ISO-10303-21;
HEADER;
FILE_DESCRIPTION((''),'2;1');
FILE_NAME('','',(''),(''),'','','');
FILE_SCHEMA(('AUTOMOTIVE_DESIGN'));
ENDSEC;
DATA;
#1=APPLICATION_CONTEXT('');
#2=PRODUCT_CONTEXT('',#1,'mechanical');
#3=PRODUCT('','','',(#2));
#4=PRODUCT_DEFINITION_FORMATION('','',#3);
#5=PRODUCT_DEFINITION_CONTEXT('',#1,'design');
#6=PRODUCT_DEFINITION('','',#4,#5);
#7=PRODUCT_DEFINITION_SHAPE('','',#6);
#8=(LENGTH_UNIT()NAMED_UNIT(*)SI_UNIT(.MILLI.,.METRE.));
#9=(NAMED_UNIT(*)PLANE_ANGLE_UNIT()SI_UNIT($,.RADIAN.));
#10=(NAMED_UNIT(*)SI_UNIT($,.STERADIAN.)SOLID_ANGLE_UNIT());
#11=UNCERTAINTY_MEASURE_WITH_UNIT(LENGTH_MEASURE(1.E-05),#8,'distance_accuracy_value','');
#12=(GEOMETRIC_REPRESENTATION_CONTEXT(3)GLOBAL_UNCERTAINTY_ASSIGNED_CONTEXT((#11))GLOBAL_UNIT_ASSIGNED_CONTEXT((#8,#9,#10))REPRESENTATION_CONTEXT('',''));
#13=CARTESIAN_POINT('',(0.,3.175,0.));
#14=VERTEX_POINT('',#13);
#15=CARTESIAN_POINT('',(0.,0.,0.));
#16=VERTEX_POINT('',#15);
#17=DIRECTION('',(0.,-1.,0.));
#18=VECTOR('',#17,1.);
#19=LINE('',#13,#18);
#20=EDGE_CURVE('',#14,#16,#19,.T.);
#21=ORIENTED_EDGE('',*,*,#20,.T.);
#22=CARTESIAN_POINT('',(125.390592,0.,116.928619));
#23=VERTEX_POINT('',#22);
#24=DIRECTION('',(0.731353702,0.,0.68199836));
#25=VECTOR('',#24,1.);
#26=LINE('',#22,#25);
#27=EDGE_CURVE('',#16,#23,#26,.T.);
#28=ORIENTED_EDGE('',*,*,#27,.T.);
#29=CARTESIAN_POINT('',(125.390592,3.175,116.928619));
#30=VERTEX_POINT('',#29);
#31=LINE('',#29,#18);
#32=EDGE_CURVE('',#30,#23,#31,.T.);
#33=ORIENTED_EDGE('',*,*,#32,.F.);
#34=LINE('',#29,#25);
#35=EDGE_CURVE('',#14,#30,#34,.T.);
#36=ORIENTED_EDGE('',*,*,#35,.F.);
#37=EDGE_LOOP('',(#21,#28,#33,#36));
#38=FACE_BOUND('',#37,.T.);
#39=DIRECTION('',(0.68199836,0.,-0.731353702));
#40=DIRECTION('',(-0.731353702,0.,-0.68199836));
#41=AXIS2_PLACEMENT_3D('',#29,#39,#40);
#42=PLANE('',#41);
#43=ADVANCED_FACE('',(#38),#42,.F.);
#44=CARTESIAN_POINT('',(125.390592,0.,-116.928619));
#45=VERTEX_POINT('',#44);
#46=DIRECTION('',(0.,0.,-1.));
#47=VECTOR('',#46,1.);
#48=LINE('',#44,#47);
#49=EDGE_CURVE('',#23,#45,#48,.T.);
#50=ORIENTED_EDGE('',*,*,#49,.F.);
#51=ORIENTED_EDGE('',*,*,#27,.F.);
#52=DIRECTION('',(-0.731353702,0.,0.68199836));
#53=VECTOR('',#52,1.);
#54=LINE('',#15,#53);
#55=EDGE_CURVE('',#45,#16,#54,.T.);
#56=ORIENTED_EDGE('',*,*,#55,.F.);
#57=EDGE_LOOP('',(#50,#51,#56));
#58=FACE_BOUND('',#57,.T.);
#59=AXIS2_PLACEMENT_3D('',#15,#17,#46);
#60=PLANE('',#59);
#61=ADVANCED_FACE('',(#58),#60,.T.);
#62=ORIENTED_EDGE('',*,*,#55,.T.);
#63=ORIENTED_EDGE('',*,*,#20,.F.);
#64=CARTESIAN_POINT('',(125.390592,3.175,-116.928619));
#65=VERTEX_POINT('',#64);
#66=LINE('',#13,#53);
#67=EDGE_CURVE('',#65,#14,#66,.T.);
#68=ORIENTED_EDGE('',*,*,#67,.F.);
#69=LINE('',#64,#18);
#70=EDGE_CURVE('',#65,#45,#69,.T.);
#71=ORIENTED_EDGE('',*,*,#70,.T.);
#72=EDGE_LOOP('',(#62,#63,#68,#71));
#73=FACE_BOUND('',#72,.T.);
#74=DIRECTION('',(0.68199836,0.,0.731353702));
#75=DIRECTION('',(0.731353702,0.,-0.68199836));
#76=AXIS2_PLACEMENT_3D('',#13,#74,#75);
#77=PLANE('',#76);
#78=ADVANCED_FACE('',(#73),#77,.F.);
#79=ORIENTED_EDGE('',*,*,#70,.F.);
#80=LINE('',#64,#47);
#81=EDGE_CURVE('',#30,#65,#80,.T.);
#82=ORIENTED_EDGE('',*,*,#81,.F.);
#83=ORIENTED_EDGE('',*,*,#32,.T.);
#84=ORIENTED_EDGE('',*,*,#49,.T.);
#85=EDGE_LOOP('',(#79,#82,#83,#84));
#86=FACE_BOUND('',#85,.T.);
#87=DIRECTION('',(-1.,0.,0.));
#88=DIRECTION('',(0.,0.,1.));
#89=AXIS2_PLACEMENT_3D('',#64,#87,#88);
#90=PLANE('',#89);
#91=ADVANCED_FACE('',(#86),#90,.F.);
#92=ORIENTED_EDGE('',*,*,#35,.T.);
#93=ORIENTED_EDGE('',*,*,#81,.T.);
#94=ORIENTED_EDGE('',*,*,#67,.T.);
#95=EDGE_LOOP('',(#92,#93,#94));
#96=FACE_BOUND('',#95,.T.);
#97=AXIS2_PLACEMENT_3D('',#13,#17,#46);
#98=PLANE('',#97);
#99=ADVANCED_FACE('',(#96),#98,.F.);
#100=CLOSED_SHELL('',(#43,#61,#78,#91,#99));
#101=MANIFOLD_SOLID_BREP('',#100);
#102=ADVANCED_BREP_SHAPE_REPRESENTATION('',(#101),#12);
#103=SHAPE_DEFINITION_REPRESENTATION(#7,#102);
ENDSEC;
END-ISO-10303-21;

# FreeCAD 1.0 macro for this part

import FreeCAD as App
import Part
import Sketcher
from FreeCAD import Vector
Q = App.Units.Quantity


def add_polygon(sketch, points):
    """Adds a closed chain of lines whose ends are joined by coincident constraints."""
    first, n = sketch.GeometryCount, len(points)
    for a, b in zip(points, points[1:] + points[:1]):
        sketch.addGeometry(Part.LineSegment(App.Vector(*a, 0), App.Vector(*b, 0)), False)
    for i in range(n):
        sketch.addConstraint(Sketcher.Constraint("Coincident", first + i, 2, first + (i + 1) % n, 1))

doc = App.newDocument("Part")
params = doc.addObject("Spreadsheet::Sheet", "Params")
for row, (alias, value) in enumerate([
    ("sketch1_length", "6.75 in"),
    ("pad1_length", "0.125 in"),
], start=1):
    params.set(f"A{row}", alias)
    params.set(f"B{row}", "=" + value)
    params.setAlias(f"B{row}", alias)

body = doc.addObject("PartDesign::Body", "Body")

sketch1 = doc.addObject("Sketcher::SketchObject", "Sketch")
body.addObject(sketch1)
sketch1.AttachmentSupport = (doc.XZ_Plane, [""])
sketch1.MapMode = "FlatFace"
add_polygon(sketch1, [(125, -117), (0, 0), (125, 117)])
sketch1.addConstraint([
    Sketcher.Constraint("Vertical", 2),
    Sketcher.Constraint("Coincident", 0, 2, -1, 1),
    Sketcher.Constraint("Equal", 0, 1),
    Sketcher.Constraint("Angle", 0, Q("137 deg")),
    Sketcher.Constraint("Distance", 0, Q("6.75 in")),
])
sketch1.setExpression("Constraints[7]", "Params.sketch1_length")
pad1 = doc.addObject("PartDesign::Pad", "Pad")
body.addObject(pad1)
pad1.Profile = sketch1
pad1.setExpression("Length", "Params.pad1_length")
pad1.Reversed = True

doc.recompute()
